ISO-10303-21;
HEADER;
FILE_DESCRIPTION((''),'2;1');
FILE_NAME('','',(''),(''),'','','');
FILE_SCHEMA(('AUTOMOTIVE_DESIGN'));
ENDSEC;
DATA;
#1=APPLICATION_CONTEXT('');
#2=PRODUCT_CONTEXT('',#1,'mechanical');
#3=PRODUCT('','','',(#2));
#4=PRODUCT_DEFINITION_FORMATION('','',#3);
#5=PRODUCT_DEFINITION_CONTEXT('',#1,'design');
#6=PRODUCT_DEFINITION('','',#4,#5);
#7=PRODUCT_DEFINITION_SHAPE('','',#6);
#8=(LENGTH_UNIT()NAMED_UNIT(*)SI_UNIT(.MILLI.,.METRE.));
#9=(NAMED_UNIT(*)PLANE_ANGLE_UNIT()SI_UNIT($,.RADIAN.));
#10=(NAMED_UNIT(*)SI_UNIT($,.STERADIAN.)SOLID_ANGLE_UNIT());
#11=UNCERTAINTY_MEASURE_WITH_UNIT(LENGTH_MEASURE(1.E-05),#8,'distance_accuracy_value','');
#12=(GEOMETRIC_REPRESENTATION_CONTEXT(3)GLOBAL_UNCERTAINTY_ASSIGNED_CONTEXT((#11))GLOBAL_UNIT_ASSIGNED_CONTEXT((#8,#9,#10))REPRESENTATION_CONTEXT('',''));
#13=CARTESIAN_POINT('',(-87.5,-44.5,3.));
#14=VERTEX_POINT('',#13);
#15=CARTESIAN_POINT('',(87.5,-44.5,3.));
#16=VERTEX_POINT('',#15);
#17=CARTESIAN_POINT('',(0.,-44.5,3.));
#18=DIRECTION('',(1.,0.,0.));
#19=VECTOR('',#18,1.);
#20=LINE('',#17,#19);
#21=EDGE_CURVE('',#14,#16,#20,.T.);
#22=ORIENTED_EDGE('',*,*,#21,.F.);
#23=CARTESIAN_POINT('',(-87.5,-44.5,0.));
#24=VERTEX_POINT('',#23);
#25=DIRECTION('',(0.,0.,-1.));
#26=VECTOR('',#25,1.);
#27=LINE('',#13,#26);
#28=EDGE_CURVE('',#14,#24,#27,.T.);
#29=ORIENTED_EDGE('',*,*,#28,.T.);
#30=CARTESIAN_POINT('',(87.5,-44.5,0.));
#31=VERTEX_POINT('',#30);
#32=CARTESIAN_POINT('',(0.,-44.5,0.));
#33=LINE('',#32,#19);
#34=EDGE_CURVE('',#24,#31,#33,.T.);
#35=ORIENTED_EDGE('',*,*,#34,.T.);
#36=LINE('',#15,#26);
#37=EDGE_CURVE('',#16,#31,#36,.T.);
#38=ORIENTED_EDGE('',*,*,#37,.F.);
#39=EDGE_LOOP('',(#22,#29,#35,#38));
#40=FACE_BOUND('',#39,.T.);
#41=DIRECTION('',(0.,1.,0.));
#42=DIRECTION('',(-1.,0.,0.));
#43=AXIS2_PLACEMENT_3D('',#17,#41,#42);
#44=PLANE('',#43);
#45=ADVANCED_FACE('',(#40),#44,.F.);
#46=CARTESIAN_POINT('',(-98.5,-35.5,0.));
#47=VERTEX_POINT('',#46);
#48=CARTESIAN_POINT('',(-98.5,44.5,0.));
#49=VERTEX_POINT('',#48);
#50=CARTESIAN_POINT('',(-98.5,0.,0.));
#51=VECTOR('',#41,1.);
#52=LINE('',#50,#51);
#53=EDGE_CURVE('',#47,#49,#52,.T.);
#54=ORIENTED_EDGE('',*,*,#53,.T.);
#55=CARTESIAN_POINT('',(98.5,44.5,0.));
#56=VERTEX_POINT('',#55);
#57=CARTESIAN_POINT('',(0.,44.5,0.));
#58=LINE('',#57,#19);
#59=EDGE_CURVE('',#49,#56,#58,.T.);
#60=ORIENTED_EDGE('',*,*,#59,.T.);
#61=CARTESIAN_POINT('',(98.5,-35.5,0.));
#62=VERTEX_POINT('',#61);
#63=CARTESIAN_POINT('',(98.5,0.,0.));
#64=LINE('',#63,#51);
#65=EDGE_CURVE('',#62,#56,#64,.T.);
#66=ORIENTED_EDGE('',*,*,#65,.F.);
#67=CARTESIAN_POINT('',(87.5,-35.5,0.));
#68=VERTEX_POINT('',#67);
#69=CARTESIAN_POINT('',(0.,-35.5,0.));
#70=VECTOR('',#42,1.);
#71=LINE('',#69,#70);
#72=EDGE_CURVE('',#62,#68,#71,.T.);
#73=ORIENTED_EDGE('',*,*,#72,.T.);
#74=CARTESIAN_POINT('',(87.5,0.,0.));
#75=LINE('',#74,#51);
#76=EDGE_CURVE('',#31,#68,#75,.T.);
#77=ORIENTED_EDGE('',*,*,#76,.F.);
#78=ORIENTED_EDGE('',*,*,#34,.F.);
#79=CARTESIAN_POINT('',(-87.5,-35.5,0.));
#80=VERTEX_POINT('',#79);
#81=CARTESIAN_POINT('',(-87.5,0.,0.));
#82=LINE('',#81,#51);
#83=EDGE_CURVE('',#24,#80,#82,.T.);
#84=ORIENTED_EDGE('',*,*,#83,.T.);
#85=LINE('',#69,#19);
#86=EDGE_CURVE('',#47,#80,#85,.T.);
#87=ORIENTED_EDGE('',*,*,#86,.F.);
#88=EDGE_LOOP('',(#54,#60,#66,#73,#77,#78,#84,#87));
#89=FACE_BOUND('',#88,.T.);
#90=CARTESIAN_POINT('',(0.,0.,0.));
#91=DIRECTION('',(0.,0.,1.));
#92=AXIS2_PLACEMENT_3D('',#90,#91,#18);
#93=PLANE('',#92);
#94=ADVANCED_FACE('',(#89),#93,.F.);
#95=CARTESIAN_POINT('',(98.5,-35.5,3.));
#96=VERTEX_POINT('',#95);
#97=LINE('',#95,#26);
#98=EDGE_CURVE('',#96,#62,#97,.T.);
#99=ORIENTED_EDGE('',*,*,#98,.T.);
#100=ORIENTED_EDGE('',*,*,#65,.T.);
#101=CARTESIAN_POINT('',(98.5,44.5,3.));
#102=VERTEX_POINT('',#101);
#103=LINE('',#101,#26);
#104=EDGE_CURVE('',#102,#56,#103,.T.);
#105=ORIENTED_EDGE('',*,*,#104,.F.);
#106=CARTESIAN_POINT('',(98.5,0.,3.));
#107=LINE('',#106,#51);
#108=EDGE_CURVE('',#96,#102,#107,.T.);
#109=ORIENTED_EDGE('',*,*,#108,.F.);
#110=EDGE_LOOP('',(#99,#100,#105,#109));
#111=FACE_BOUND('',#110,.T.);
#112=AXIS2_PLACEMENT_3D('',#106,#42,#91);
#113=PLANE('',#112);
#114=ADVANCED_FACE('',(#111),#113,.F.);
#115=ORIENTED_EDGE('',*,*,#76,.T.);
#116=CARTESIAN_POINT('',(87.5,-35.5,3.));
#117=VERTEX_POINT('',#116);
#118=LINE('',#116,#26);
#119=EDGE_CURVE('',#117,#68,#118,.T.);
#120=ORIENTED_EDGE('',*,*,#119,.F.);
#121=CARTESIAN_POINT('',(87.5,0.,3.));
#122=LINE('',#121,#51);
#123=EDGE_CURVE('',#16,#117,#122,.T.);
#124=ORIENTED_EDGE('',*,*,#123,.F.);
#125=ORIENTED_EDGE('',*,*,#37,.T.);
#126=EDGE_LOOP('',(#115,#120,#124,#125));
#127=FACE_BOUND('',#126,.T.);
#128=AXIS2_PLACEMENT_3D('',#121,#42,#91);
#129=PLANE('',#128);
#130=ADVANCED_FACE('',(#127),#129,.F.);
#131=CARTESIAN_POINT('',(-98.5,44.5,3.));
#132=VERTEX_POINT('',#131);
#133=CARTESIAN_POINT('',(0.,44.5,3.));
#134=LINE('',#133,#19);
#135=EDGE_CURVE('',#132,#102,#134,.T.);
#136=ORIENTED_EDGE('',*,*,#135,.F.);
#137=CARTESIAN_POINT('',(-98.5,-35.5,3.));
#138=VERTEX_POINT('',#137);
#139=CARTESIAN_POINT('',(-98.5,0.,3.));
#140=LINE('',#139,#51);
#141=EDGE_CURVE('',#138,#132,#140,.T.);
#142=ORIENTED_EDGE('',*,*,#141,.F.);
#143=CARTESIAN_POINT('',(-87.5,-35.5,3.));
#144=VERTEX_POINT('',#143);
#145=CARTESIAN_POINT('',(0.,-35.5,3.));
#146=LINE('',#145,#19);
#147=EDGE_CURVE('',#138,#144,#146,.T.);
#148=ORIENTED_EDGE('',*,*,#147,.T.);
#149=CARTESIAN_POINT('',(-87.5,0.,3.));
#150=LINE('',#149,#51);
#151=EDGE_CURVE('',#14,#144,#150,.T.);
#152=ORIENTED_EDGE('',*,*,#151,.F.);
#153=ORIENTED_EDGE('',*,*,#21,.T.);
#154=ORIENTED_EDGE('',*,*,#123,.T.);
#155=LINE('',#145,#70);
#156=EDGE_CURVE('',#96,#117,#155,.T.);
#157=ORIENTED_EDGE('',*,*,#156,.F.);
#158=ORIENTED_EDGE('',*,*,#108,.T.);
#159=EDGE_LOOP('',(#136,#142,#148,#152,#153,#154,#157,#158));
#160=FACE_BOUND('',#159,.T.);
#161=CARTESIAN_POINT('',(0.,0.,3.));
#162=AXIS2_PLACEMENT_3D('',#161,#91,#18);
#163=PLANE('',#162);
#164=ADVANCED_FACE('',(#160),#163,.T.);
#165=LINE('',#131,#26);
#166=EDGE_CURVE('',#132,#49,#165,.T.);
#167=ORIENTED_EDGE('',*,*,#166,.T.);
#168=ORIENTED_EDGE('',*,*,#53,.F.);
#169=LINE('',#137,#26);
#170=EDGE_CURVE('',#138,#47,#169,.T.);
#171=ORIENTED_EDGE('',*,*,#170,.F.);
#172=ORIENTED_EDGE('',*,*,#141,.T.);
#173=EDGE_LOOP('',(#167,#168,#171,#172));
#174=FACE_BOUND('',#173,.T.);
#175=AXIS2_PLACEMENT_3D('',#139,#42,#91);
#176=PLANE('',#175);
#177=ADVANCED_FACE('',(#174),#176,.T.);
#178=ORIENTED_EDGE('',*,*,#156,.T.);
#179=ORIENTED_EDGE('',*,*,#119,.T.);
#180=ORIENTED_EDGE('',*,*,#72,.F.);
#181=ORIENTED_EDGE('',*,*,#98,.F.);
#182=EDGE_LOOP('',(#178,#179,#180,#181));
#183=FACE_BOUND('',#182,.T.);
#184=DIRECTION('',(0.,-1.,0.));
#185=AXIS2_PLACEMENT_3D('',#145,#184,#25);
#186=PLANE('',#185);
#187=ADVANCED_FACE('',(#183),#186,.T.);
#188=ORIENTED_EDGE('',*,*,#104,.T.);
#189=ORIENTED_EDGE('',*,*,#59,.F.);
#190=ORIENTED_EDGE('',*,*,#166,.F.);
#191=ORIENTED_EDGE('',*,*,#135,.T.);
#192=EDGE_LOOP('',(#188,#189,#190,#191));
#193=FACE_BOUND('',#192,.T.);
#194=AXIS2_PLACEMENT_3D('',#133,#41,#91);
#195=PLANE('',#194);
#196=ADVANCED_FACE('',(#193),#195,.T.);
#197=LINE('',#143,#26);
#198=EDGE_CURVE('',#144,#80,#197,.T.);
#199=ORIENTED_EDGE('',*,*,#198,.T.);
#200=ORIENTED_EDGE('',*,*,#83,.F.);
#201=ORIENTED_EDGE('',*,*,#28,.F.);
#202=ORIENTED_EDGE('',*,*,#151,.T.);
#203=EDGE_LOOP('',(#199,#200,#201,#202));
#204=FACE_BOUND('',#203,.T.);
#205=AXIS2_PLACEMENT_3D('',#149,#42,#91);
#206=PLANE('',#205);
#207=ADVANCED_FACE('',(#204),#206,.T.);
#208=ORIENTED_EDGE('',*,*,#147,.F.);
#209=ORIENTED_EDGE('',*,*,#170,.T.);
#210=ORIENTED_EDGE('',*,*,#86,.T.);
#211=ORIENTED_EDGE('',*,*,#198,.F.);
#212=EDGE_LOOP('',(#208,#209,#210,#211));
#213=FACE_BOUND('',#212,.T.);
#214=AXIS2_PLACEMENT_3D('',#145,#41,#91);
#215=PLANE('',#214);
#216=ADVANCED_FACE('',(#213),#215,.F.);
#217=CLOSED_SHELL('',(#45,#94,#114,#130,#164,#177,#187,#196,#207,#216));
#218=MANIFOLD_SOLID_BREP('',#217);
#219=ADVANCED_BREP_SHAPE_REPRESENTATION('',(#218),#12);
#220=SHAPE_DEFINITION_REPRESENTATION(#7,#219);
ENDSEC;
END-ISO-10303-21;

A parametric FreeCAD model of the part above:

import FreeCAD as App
import Part
import Sketcher

V = App.Vector
Q = App.Units.Quantity


def add_polygon(sketch, points):
    """Adds a closed chain of lines whose ends are joined by coincident constraints."""
    first, n = sketch.GeometryCount, len(points)
    for a, b in zip(points, points[1:] + points[:1]):
        sketch.addGeometry(Part.LineSegment(App.Vector(*a, 0), App.Vector(*b, 0)), False)
    for i in range(n):
        sketch.addConstraint(Sketcher.Constraint("Coincident", first + i, 2, first + (i + 1) % n, 1))

doc = App.newDocument("Part")
body = doc.addObject("PartDesign::Body", "Body")

sketch1 = body.newObject("Sketcher::SketchObject", "Sketch")
sketch1.AttachmentSupport = (doc.getObject("XY_Plane"), [""])
sketch1.MapMode = "FlatFace"
add_polygon(sketch1, [(-87.5, -35.5), (-87.5, -44.5), (87.5, -44.5), (87.5, -35.5), (98.5, -35.5), (98.5, 44.5), (-98.5, 44.5), (-98.5, -35.5)])
sketch1.addConstraint([
    Sketcher.Constraint("Vertical", 0),
    Sketcher.Constraint("Horizontal", 1),
    Sketcher.Constraint("Vertical", 2),
    Sketcher.Constraint("Horizontal", 3),
    Sketcher.Constraint("Vertical", 4),
    Sketcher.Constraint("Horizontal", 5),
    Sketcher.Constraint("Vertical", 6),
    Sketcher.Constraint("Horizontal", 7),
    Sketcher.Constraint("Symmetric", 3, 2, 6, 2, -2),
    Sketcher.Constraint("Equal", 3, 7),
    Sketcher.Constraint("DistanceX", 1, 1, 1, 2, Q("175 mm")),
    Sketcher.Constraint("DistanceX", 3, 1, 3, 2, Q("11 mm")),
    Sketcher.Constraint("DistanceY", 0, 2, 0, 1, Q("9 mm")),
    Sketcher.Constraint("DistanceY", 4, 1, 4, 2, Q("80 mm")),
    Sketcher.Constraint("DistanceY", 0, 2, -1, 1, Q("44.5 mm")),
])
pad1 = body.newObject("PartDesign::Pad", "Pad")
pad1.Profile = sketch1
pad1.Length = 3

doc.recompute()
